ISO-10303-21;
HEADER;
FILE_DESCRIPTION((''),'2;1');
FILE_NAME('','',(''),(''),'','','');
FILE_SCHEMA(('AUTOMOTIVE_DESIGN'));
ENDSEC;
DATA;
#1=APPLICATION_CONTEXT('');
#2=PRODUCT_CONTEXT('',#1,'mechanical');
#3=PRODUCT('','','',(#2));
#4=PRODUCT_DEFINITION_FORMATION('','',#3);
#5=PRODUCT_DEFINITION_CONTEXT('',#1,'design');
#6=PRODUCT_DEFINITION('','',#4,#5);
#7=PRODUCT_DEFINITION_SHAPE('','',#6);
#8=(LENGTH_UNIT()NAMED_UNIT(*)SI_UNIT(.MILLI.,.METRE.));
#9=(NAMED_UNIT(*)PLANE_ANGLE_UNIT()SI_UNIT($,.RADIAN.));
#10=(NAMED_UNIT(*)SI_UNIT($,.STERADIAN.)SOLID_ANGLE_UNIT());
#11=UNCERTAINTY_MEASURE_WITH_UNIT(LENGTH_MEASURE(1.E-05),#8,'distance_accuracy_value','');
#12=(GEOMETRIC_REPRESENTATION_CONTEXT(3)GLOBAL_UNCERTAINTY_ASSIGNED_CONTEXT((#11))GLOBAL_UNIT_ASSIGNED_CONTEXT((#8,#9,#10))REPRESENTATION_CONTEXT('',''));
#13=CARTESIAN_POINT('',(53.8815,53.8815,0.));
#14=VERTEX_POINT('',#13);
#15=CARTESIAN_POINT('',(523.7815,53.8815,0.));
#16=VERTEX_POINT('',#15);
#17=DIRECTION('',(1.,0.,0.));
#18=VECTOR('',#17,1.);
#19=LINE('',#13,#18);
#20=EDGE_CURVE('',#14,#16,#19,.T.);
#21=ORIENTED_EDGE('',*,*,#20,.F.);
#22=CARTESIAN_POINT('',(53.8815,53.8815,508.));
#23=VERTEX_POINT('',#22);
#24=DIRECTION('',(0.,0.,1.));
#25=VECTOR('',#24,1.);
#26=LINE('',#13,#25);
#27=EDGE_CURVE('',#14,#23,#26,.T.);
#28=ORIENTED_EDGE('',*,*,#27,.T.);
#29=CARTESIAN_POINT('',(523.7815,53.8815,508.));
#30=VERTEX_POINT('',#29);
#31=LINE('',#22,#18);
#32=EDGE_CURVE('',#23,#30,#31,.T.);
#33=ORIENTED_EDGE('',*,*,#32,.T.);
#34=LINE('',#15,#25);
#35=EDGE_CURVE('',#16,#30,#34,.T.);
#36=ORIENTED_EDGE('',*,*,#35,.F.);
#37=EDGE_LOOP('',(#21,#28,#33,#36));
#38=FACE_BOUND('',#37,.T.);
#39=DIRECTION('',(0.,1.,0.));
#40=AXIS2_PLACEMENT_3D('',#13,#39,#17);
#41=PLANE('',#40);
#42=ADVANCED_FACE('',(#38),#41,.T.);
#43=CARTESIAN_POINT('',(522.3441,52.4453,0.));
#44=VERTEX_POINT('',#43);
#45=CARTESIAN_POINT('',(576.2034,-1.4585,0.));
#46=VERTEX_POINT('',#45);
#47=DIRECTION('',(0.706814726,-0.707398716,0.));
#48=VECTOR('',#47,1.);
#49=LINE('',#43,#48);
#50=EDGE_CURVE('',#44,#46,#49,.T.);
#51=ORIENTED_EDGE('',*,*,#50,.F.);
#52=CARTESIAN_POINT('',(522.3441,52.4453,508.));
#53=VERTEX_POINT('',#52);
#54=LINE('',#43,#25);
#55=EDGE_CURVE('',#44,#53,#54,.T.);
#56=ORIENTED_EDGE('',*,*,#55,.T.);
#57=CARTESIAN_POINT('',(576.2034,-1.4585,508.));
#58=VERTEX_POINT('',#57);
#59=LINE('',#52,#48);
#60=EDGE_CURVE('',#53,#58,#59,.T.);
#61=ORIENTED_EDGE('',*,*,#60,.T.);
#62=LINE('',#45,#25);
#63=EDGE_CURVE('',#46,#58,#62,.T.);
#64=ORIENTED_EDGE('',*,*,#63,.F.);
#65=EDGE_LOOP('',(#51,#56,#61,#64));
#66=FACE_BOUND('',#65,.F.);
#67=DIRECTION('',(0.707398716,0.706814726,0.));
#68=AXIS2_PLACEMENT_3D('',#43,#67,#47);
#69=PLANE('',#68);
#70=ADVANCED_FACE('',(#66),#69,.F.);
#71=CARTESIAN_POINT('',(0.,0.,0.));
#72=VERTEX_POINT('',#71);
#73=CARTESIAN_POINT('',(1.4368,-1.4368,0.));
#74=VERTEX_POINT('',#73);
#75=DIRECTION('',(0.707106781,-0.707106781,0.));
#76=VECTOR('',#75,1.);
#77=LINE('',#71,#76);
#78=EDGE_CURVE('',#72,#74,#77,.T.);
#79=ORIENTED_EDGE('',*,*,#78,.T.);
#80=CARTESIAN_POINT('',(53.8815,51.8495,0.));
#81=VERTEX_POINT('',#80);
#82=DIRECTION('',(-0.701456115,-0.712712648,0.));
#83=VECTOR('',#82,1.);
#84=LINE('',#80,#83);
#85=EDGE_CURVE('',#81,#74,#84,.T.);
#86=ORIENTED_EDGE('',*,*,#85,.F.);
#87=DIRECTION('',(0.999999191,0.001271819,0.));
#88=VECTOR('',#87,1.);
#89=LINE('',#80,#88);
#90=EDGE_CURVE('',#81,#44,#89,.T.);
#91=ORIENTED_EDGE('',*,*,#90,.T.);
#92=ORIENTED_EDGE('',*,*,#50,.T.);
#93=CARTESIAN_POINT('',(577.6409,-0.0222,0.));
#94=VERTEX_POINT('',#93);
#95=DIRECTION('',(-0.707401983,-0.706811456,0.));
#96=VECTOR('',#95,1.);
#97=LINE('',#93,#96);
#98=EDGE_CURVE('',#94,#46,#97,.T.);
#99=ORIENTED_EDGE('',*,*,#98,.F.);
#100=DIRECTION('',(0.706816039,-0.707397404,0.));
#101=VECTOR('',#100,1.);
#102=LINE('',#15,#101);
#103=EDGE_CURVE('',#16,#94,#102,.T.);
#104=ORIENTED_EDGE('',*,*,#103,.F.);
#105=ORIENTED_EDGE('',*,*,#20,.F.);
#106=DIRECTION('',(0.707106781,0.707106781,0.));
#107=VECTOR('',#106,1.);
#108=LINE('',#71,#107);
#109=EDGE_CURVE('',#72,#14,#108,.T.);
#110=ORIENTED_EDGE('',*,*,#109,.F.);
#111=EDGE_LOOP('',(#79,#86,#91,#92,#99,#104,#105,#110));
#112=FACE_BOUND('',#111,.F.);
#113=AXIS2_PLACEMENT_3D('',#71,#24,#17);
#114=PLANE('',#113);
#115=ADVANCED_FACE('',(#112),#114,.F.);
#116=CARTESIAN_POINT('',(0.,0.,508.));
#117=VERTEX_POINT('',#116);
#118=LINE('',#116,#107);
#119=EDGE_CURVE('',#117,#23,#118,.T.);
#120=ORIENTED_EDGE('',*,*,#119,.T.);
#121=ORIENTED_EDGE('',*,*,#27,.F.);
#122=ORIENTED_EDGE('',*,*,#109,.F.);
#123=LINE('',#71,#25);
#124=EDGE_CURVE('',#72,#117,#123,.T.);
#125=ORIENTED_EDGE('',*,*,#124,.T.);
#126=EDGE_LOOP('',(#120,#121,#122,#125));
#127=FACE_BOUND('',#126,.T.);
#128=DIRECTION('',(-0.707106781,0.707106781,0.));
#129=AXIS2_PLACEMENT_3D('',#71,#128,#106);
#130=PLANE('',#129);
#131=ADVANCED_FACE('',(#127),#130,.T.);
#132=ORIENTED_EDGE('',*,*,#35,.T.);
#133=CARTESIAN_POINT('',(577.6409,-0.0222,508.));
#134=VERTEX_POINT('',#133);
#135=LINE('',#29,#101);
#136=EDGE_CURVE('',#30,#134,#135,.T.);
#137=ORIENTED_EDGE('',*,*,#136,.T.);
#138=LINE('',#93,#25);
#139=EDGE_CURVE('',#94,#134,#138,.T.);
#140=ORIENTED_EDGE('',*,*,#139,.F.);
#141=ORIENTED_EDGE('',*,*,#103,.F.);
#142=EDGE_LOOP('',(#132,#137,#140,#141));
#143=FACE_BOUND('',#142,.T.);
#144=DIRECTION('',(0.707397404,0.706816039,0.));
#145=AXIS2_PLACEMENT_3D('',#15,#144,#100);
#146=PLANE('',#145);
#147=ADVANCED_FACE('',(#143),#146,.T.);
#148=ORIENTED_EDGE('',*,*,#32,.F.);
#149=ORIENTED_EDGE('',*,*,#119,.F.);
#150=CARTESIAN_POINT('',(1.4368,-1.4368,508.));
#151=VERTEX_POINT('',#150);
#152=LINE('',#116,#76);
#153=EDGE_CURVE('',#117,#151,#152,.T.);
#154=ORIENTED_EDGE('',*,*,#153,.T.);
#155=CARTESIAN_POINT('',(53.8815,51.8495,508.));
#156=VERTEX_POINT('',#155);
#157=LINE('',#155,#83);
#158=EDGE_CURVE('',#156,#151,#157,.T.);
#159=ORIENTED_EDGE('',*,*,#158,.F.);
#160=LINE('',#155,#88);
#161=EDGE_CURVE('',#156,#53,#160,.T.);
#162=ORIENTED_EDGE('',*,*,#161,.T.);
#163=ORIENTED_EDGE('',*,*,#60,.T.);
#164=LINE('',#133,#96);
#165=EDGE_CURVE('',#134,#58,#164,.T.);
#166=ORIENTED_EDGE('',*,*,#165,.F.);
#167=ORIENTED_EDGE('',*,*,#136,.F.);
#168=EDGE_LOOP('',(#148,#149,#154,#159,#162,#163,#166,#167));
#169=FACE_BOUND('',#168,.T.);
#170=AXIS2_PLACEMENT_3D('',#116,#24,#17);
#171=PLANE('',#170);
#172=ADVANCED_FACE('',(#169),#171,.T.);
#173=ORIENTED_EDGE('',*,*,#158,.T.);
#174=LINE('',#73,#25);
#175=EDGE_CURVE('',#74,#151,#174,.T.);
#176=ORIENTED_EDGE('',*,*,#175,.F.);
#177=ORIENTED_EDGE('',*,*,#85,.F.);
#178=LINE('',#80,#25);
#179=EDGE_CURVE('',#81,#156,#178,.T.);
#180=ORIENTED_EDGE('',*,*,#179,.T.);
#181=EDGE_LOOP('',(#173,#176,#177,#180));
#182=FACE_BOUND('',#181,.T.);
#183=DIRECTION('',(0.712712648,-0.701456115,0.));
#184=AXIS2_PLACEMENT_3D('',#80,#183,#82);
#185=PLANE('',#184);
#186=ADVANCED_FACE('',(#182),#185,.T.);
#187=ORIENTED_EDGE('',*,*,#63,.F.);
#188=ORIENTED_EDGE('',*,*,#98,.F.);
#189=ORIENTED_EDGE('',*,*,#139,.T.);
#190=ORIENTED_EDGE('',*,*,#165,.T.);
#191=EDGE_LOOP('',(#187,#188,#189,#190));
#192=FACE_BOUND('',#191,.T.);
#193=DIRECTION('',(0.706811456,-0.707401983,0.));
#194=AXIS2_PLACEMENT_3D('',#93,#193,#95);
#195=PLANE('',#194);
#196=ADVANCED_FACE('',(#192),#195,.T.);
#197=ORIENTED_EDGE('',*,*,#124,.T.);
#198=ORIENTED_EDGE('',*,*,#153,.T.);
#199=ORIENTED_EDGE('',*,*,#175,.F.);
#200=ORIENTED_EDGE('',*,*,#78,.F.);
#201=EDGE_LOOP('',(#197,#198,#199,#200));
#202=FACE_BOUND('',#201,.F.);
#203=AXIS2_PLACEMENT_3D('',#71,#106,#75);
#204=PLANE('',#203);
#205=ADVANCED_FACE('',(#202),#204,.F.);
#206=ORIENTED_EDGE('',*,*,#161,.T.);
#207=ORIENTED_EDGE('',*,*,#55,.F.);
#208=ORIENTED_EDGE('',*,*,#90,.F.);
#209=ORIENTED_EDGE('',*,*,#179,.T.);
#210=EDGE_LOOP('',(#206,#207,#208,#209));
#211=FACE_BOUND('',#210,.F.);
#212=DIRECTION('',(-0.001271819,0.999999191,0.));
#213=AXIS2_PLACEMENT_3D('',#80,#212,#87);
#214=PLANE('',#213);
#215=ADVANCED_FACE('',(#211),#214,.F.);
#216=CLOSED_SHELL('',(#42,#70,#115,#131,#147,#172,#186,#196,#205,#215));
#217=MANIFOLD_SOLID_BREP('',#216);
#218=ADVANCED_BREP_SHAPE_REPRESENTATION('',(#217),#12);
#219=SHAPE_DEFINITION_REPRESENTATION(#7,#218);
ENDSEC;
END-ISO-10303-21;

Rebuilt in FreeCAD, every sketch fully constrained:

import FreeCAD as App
import Part
import Sketcher

V = App.Vector
Q = App.Units.Quantity

doc = App.newDocument("Part")
body = doc.addObject("PartDesign::Body", "Body")

sketch1 = body.newObject("Sketcher::SketchObject", "Sketch")
sketch1.AttachmentSupport = (doc.getObject("XY_Plane"), [""])
sketch1.MapMode = "FlatFace"
sketch1.addGeometry([
    Part.LineSegment(V(53.8815, 53.8815, 0), V(0, 0, 0)),
    Part.LineSegment(V(0, 0, 0), V(1.4368, -1.4368, 0)),
    Part.LineSegment(V(1.4368, -1.4368, 0), V(53.8815, 51.8495, 0)),
    Part.LineSegment(V(53.8815, 51.8495, 0), V(522.3441, 52.4453, 0)),
    Part.LineSegment(V(522.3441, 52.4453, 0), V(576.2034, -1.4585, 0)),
    Part.LineSegment(V(576.2034, -1.4585, 0), V(577.6409, -0.0222, 0)),
    Part.LineSegment(V(577.6409, -0.0222, 0), V(523.7815, 53.8815, 0)),
    Part.LineSegment(V(523.7815, 53.8815, 0), V(53.8815, 53.8815, 0)),
], False)
sketch1.addConstraint([
    Sketcher.Constraint("Coincident", 0, 2, 1, 1),
    Sketcher.Constraint("Coincident", 1, 2, 2, 1),
    Sketcher.Constraint("Coincident", 2, 2, 3, 1),
    Sketcher.Constraint("Coincident", 3, 2, 4, 1),
    Sketcher.Constraint("Coincident", 4, 2, 5, 1),
    Sketcher.Constraint("Coincident", 5, 2, 6, 1),
    Sketcher.Constraint("Coincident", 6, 2, 7, 1),
    Sketcher.Constraint("Coincident", 7, 2, 0, 1),
    Sketcher.Constraint("Horizontal", 7),
    Sketcher.Constraint("Coincident", 0, 2, -1, 1),
    Sketcher.Constraint("Distance", 0, Q("3 in")),
    Sketcher.Constraint("Distance", 4, Q("3 in")),
    Sketcher.Constraint("Distance", 6, Q("3 in")),
    Sketcher.Constraint("Distance", 1, Q("0.08 in")),
    Sketcher.Constraint("Distance", 5, Q("0.08 in")),
    Sketcher.Constraint("DistanceY", 2, 2, 6, 2, Q("0.08 in")),
    Sketcher.Constraint("DistanceX", 7, 2, 7, 1, Q("18.5 in")),
    Sketcher.Constraint("DistanceX", 2, 2, 6, 2, Q("18.5 in")),
    Sketcher.Constraint("DistanceX", 2, 2, 3, 2, Q("18.4434 in")),
    Sketcher.Constraint("DistanceY", 4, 2, 3, 2, Q("2.1222 in")),
    Sketcher.Constraint("DistanceX", 1, 2, 4, 2, Q("22.6286 in")),
    Sketcher.Constraint("DistanceX", 4, 2, 5, 2, Q("0.0566 in")),
    Sketcher.Constraint("DistanceY", 1, 2, 5, 2, Q("0.0557 in")),
])
pad1 = body.newObject("PartDesign::Pad", "Pad")
pad1.Profile = sketch1
pad1.Length = Q("20 in")

doc.recompute()
